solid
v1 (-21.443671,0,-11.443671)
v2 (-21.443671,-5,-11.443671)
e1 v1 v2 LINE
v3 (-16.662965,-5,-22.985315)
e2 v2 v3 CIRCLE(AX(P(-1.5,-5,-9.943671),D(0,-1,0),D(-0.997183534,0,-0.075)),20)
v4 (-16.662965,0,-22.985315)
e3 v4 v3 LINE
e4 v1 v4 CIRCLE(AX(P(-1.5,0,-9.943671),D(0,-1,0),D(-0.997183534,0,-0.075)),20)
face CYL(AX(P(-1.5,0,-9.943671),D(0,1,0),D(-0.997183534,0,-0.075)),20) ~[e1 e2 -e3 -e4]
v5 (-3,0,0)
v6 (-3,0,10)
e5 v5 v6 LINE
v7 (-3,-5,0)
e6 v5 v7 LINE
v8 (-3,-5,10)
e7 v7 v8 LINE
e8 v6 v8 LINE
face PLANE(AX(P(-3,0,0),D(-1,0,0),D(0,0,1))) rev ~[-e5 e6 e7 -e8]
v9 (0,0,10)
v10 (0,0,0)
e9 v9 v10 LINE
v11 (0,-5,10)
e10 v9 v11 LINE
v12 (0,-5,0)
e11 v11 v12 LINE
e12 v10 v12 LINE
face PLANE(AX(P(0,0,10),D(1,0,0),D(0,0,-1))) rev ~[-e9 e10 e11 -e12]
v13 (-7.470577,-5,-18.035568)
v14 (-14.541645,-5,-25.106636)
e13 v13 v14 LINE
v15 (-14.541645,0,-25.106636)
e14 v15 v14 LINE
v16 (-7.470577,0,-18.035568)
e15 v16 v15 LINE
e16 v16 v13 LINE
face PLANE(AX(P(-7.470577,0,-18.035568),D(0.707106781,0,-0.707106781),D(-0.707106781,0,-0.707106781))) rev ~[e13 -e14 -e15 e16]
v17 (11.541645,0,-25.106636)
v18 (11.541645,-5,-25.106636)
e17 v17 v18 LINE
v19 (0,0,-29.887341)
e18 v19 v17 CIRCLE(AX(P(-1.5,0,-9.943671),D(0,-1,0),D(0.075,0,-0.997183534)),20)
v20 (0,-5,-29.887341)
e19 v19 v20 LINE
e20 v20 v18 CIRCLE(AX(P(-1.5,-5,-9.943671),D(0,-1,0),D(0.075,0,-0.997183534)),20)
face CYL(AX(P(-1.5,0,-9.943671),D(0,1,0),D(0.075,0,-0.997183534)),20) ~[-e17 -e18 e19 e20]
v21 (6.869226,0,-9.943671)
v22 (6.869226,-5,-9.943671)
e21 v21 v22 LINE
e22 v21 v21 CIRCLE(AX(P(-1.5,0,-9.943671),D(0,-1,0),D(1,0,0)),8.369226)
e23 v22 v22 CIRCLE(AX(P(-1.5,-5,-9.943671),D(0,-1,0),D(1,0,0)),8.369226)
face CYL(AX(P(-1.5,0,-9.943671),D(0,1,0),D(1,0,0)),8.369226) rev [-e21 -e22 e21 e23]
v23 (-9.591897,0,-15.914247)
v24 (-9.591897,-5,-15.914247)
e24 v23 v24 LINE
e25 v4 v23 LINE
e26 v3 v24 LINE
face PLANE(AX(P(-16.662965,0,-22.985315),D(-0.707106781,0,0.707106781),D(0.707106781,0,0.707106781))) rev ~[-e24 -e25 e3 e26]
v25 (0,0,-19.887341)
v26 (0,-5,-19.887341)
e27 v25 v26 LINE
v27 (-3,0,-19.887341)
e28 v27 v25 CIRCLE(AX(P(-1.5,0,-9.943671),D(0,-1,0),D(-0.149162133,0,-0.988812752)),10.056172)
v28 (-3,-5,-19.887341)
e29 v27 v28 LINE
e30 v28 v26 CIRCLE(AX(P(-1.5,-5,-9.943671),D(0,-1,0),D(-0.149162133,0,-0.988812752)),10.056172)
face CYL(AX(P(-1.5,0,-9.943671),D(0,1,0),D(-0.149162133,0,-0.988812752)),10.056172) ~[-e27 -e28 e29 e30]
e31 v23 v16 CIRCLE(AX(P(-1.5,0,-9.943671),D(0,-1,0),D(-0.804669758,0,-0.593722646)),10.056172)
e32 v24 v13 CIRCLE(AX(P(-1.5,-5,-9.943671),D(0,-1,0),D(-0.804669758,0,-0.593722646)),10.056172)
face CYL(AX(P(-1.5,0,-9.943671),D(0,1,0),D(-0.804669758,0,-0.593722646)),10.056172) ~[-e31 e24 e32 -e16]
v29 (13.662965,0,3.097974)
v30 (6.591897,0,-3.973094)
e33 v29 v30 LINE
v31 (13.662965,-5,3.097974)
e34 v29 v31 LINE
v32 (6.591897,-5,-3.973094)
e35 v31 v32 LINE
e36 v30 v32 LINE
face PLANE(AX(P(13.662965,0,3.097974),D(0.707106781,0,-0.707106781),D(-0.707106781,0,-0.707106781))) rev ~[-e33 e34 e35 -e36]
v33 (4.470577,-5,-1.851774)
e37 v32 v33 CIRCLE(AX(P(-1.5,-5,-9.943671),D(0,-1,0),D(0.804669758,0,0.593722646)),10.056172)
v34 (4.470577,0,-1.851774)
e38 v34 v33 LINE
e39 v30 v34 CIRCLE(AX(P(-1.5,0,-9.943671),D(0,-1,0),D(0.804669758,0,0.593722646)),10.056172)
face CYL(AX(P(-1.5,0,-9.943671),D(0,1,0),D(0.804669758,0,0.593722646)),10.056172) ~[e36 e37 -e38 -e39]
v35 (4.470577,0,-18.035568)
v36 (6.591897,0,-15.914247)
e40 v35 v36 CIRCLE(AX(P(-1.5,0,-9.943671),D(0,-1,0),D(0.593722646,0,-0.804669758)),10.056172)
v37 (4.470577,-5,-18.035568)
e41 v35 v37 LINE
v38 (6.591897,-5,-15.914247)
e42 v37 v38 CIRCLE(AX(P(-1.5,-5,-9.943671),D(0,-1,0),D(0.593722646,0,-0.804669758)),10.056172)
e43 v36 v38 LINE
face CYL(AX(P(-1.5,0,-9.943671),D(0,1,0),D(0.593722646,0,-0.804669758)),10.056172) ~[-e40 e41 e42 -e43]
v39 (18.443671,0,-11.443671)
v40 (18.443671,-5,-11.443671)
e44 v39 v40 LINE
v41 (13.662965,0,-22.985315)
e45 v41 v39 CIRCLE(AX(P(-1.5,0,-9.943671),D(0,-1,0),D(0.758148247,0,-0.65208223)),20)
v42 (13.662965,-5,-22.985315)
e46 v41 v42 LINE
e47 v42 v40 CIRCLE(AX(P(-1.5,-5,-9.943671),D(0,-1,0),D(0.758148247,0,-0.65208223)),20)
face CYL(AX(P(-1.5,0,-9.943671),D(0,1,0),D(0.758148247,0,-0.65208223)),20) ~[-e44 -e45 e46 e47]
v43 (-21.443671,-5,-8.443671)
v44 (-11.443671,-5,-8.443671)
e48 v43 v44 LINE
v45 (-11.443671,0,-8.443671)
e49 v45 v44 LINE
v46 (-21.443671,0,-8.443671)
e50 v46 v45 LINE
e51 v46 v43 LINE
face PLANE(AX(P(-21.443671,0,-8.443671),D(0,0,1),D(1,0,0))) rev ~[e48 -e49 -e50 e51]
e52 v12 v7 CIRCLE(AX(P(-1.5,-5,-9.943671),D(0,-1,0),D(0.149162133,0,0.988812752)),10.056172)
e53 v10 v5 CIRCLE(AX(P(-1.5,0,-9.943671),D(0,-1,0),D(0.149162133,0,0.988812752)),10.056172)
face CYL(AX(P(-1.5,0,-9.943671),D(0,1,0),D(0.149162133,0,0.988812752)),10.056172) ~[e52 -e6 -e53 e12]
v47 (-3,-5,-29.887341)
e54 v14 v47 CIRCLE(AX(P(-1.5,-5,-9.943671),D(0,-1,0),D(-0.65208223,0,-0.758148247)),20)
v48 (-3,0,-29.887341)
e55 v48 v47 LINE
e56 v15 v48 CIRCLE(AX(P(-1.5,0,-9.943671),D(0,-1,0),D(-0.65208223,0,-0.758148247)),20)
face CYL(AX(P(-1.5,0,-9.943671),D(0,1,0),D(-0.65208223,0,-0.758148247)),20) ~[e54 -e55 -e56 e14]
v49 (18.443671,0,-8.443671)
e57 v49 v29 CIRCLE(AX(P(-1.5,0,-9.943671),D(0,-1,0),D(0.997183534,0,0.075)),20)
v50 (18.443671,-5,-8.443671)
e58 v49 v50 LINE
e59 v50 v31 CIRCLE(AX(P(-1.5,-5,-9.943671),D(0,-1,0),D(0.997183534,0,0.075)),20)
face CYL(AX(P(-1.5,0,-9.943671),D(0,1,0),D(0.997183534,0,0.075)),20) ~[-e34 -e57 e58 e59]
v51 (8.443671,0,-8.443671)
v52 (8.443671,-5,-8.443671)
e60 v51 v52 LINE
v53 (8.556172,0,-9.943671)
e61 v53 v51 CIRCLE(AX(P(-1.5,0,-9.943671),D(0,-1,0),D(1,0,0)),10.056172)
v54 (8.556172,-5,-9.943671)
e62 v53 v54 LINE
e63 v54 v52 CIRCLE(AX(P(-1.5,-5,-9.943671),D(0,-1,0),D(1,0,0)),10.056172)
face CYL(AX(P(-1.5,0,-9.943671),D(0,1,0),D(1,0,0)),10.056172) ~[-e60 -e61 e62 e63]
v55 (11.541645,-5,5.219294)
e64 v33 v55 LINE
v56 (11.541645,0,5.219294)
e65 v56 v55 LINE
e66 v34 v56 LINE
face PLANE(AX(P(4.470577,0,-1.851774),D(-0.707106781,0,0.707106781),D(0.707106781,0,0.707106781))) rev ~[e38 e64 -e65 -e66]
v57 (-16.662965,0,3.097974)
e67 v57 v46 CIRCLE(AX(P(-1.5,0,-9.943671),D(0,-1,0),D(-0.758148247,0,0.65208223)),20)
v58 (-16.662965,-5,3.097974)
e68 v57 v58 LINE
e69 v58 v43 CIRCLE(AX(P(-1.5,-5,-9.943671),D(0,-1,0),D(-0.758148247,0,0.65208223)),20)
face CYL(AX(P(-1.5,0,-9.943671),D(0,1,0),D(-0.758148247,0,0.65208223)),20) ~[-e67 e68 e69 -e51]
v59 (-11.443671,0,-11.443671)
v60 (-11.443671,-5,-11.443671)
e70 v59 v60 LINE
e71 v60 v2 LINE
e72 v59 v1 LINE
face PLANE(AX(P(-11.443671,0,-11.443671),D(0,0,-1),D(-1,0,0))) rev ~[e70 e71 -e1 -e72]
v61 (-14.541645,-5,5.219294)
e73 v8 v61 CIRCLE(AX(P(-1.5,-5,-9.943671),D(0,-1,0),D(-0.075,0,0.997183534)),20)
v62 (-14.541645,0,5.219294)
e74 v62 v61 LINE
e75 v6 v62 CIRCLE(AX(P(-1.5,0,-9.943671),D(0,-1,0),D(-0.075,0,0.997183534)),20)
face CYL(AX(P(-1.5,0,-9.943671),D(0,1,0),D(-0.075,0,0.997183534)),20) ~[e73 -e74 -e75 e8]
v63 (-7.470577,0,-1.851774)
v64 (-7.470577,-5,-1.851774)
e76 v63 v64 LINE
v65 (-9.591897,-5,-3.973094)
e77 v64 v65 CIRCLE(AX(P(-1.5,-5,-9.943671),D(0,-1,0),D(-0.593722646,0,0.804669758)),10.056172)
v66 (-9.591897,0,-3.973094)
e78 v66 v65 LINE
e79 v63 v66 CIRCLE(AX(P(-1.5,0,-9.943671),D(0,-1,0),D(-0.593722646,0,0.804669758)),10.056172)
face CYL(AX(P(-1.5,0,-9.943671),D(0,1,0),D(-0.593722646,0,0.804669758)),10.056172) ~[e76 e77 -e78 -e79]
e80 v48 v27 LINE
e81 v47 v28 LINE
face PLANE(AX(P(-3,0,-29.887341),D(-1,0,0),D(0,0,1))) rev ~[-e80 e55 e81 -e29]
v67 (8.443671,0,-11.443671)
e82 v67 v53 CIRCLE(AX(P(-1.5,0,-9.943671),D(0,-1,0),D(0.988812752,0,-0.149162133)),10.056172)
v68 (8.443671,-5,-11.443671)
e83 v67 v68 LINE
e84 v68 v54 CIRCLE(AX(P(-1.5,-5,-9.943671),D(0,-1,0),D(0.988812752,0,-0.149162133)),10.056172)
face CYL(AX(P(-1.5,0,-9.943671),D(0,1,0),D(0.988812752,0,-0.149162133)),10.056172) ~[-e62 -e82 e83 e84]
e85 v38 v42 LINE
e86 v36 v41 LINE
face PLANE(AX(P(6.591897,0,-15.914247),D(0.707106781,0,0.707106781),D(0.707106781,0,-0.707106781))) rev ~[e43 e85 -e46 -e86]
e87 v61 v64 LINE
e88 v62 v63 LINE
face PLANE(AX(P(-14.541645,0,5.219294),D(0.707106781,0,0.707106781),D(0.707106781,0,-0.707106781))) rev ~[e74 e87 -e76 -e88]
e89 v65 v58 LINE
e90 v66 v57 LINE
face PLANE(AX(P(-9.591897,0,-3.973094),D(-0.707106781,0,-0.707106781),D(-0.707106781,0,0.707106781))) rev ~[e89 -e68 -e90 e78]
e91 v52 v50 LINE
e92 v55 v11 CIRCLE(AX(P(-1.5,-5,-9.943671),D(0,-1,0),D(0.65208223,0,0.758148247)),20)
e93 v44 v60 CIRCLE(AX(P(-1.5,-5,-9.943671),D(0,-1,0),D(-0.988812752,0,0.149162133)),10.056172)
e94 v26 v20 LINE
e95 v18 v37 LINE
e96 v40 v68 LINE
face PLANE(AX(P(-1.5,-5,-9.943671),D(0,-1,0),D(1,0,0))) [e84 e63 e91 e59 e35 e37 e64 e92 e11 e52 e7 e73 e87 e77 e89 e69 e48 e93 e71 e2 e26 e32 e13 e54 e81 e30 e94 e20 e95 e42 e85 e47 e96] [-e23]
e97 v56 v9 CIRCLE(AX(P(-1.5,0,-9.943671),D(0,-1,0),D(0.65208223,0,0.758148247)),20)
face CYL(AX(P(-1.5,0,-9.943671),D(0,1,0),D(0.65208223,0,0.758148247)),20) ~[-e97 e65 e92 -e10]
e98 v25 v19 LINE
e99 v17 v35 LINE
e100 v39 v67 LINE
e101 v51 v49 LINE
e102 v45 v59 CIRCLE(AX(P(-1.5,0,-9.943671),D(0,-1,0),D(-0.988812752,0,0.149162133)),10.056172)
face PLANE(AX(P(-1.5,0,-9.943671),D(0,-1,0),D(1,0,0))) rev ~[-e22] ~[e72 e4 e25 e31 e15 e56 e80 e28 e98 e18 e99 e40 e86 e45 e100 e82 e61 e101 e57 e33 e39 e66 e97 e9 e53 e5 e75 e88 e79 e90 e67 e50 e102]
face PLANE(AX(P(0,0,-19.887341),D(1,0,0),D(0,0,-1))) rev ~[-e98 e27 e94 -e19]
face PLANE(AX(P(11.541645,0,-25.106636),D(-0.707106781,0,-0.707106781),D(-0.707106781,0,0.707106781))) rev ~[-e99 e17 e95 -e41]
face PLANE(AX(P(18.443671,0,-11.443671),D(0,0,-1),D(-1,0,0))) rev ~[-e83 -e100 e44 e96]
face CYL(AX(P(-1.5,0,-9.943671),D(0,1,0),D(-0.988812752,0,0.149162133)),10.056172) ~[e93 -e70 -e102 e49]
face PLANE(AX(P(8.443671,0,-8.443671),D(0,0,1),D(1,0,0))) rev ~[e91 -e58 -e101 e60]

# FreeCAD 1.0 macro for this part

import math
import FreeCAD as App
import Part
import Sketcher

V = App.Vector

doc = App.newDocument("Part")
body = doc.addObject("PartDesign::Body", "Body")

# Sketch on XZ plane
sketch1 = body.newObject("Sketcher::SketchObject", "Sketch")
sketch1.AttachmentSupport = (doc.getObject("XZ_Plane"), [""])
sketch1.MapMode = "FlatFace"
sketch1.addGeometry([
    Part.LineSegment(V(4.470577, -1.851774, 0), V(11.541645, 5.219294, 0)),  # 0
    Part.ArcOfCircle(Part.Circle(V(-1.5, -9.943671, 0), V(0, 0, 1), 20), math.radians(49.301222), math.radians(85.698778)),  # 1
    Part.LineSegment(V(0, 10, 0), V(0, 0, 0)),  # 2
    Part.ArcOfCircle(Part.Circle(V(-1.5, -9.943671, 0), V(0, 0, 1), 10.056172), math.radians(81.421626), math.radians(98.578374)),  # 3
    Part.LineSegment(V(-3, 0, 0), V(-3, 10, 0)),  # 4
    Part.ArcOfCircle(Part.Circle(V(-1.5, -9.943671, 0), V(0, 0, 1), 20), math.radians(94.301222), math.radians(130.698778)),  # 5
    Part.LineSegment(V(-14.541645, 5.219294, 0), V(-7.470577, -1.851774, 0)),  # 6
    Part.ArcOfCircle(Part.Circle(V(-1.5, -9.943671, 0), V(0, 0, 1), 10.056172), math.radians(126.421626), math.radians(143.578374)),  # 7
    Part.LineSegment(V(-9.591897, -3.973094, 0), V(-16.662965, 3.097974, 0)),  # 8
    Part.ArcOfCircle(Part.Circle(V(-1.5, -9.943671, 0), V(0, 0, 1), 20), math.radians(139.301222), math.radians(175.698778)),  # 9
    Part.LineSegment(V(-21.443671, -8.443671, 0), V(-11.443671, -8.443671, 0)),  # 10
    Part.ArcOfCircle(Part.Circle(V(-1.5, -9.943671, 0), V(0, 0, 1), 10.056172), math.radians(171.421626), math.radians(188.578374)),  # 11
    Part.LineSegment(V(-11.443671, -11.443671, 0), V(-21.443671, -11.443671, 0)),  # 12
    Part.ArcOfCircle(Part.Circle(V(-1.5, -9.943671, 0), V(0, 0, 1), 20), math.radians(-175.698778), math.radians(-139.301222)),  # 13
    Part.LineSegment(V(-16.662965, -22.985315, 0), V(-9.591897, -15.914247, 0)),  # 14
    Part.ArcOfCircle(Part.Circle(V(-1.5, -9.943671, 0), V(0, 0, 1), 10.056172), math.radians(-143.578374), math.radians(-126.421626)),  # 15
    Part.LineSegment(V(-7.470577, -18.035568, 0), V(-14.541645, -25.106636, 0)),  # 16
    Part.ArcOfCircle(Part.Circle(V(-1.5, -9.943671, 0), V(0, 0, 1), 20), math.radians(-130.698778), math.radians(-94.301222)),  # 17
    Part.LineSegment(V(-3, -29.887341, 0), V(-3, -19.887341, 0)),  # 18
    Part.ArcOfCircle(Part.Circle(V(-1.5, -9.943671, 0), V(0, 0, 1), 10.056172), math.radians(-98.578374), math.radians(-81.421626)),  # 19
    Part.LineSegment(V(0, -19.887341, 0), V(0, -29.887341, 0)),  # 20
    Part.ArcOfCircle(Part.Circle(V(-1.5, -9.943671, 0), V(0, 0, 1), 20), math.radians(-85.698778), math.radians(-49.301222)),  # 21
    Part.LineSegment(V(11.541645, -25.106636, 0), V(4.470577, -18.035568, 0)),  # 22
    Part.ArcOfCircle(Part.Circle(V(-1.5, -9.943671, 0), V(0, 0, 1), 10.056172), math.radians(-53.578374), math.radians(-36.421626)),  # 23
    Part.LineSegment(V(6.591897, -15.914247, 0), V(13.662965, -22.985315, 0)),  # 24
    Part.ArcOfCircle(Part.Circle(V(-1.5, -9.943671, 0), V(0, 0, 1), 20), math.radians(-40.698778), math.radians(-4.301222)),  # 25
    Part.LineSegment(V(18.443671, -11.443671, 0), V(8.443671, -11.443671, 0)),  # 26
    Part.ArcOfCircle(Part.Circle(V(-1.5, -9.943671, 0), V(0, 0, 1), 10.056172), math.radians(-8.578374), math.radians(0)),  # 27
    Part.ArcOfCircle(Part.Circle(V(-1.5, -9.943671, 0), V(0, 0, 1), 10.056172), math.radians(0), math.radians(8.578374)),  # 28
    Part.LineSegment(V(8.443671, -8.443671, 0), V(18.443671, -8.443671, 0)),  # 29
    Part.ArcOfCircle(Part.Circle(V(-1.5, -9.943671, 0), V(0, 0, 1), 20), math.radians(4.301222), math.radians(40.698778)),  # 30
    Part.LineSegment(V(13.662965, 3.097974, 0), V(6.591897, -3.973094, 0)),  # 31
    Part.ArcOfCircle(Part.Circle(V(-1.5, -9.943671, 0), V(0, 0, 1), 10.056172), math.radians(36.421626), math.radians(53.578374)),  # 32
    Part.Circle(V(-1.5, -9.943671, 0), V(0, 0, 1), 8.369226),  # 33
], False)
sketch1.addConstraint([
    Sketcher.Constraint("Coincident", 0, 2, 1, 1),
    Sketcher.Constraint("Coincident", 1, 2, 2, 1),
    Sketcher.Constraint("Coincident", 2, 2, 3, 1),
    Sketcher.Constraint("Coincident", 3, 2, 4, 1),
    Sketcher.Constraint("Coincident", 4, 2, 5, 1),
    Sketcher.Constraint("Coincident", 5, 2, 6, 1),
    Sketcher.Constraint("Coincident", 6, 2, 7, 1),
    Sketcher.Constraint("Coincident", 7, 2, 8, 1),
    Sketcher.Constraint("Coincident", 8, 2, 9, 1),
    Sketcher.Constraint("Coincident", 9, 2, 10, 1),
    Sketcher.Constraint("Coincident", 10, 2, 11, 1),
    Sketcher.Constraint("Coincident", 11, 2, 12, 1),
    Sketcher.Constraint("Coincident", 12, 2, 13, 1),
    Sketcher.Constraint("Coincident", 13, 2, 14, 1),
    Sketcher.Constraint("Coincident", 14, 2, 15, 1),
    Sketcher.Constraint("Coincident", 15, 2, 16, 1),
    Sketcher.Constraint("Coincident", 16, 2, 17, 1),
    Sketcher.Constraint("Coincident", 17, 2, 18, 1),
    Sketcher.Constraint("Coincident", 18, 2, 19, 1),
    Sketcher.Constraint("Coincident", 19, 2, 20, 1),
    Sketcher.Constraint("Coincident", 20, 2, 21, 1),
    Sketcher.Constraint("Coincident", 21, 2, 22, 1),
    Sketcher.Constraint("Coincident", 22, 2, 23, 1),
    Sketcher.Constraint("Coincident", 23, 2, 24, 1),
    Sketcher.Constraint("Coincident", 24, 2, 25, 1),
    Sketcher.Constraint("Coincident", 25, 2, 26, 1),
    Sketcher.Constraint("Coincident", 26, 2, 27, 1),
    Sketcher.Constraint("Tangent", 27, 2, 28, 1),
    Sketcher.Constraint("Coincident", 28, 2, 29, 1),
    Sketcher.Constraint("Coincident", 29, 2, 30, 1),
    Sketcher.Constraint("Coincident", 30, 2, 31, 1),
    Sketcher.Constraint("Coincident", 31, 2, 32, 1),
    Sketcher.Constraint("Coincident", 32, 2, 0, 1),
    Sketcher.Constraint("Vertical", 2),
    Sketcher.Constraint("Vertical", 4),
    Sketcher.Constraint("Horizontal", 10),
    Sketcher.Constraint("Horizontal", 12),
    Sketcher.Constraint("Vertical", 18),
    Sketcher.Constraint("Vertical", 20),
    Sketcher.Constraint("Horizontal", 26),
    Sketcher.Constraint("Horizontal", 29),
    Sketcher.Constraint("Coincident", 2, 2, -1, 1),
    Sketcher.Constraint("Coincident", 3, 3, 1, 3),
    Sketcher.Constraint("Coincident", 5, 3, 1, 3),
    Sketcher.Constraint("Coincident", 7, 3, 1, 3),
    Sketcher.Constraint("Coincident", 9, 3, 1, 3),
    Sketcher.Constraint("Coincident", 11, 3, 1, 3),
    Sketcher.Constraint("Coincident", 13, 3, 1, 3),
    Sketcher.Constraint("Coincident", 15, 3, 1, 3),
    Sketcher.Constraint("Coincident", 17, 3, 1, 3),
    Sketcher.Constraint("Coincident", 19, 3, 1, 3),
    Sketcher.Constraint("Coincident", 21, 3, 1, 3),
    Sketcher.Constraint("Coincident", 23, 3, 1, 3),
    Sketcher.Constraint("Coincident", 25, 3, 1, 3),
    Sketcher.Constraint("Coincident", 27, 3, 1, 3),
    Sketcher.Constraint("Coincident", 30, 3, 1, 3),
    Sketcher.Constraint("Coincident", 32, 3, 1, 3),
    Sketcher.Constraint("Coincident", 33, 3, 1, 3),
    Sketcher.Constraint("Equal", 1, 5),
    Sketcher.Constraint("Equal", 3, 7),
    Sketcher.Constraint("Equal", 5, 9),
    Sketcher.Constraint("Equal", 7, 11),
    Sketcher.Constraint("Equal", 9, 13),
    Sketcher.Constraint("Equal", 11, 15),
    Sketcher.Constraint("Equal", 13, 17),
    Sketcher.Constraint("Equal", 15, 19),
    Sketcher.Constraint("Equal", 17, 21),
    Sketcher.Constraint("Equal", 19, 23),
    Sketcher.Constraint("Equal", 21, 25),
    Sketcher.Constraint("Equal", 23, 27),
    Sketcher.Constraint("Equal", 27, 28),
    Sketcher.Constraint("Equal", 25, 30),
    Sketcher.Constraint("Equal", 28, 32),
    Sketcher.Constraint("PointOnObject", 3, 2, -1),
    Sketcher.Constraint("PointOnObject", 19, 2, -2),
    Sketcher.Constraint("Perpendicular", 0, 6),
    Sketcher.Constraint("Parallel", 6, 8),
    Sketcher.Constraint("Perpendicular", 8, 14),
    Sketcher.Constraint("Parallel", 14, 16),
    Sketcher.Constraint("Perpendicular", 16, 22),
    Sketcher.Constraint("Parallel", 22, 24),
    Sketcher.Constraint("Perpendicular", 24, 31),
    Sketcher.Constraint("Horizontal", 0, 2, 5, 2),
    Sketcher.Constraint("Horizontal", 18, 2, 19, 2),
    Sketcher.Constraint("Horizontal", 16, 2, 21, 2),
    Sketcher.Constraint("Horizontal", 15, 2, 22, 2),
    Sketcher.Constraint("Horizontal", 14, 2, 23, 2),
    Sketcher.Constraint("Horizontal", 12, 2, 25, 2),
    Sketcher.Constraint("Horizontal", 33, 3, 27, 2),
    Sketcher.Constraint("Horizontal", 10, 2, 28, 2),
    Sketcher.Constraint("Horizontal", 8, 2, 30, 2),
    Sketcher.Constraint("Vertical", 10, 2, 11, 2),
    Sketcher.Constraint("Vertical", 8, 2, 13, 2),
    Sketcher.Constraint("Vertical", 6, 2, 15, 2),
    Sketcher.Constraint("Equal", 29, 2),
    Sketcher.Constraint("Equal", 6, 8),
    Sketcher.Constraint("Radius", 1, 20.0),
    Sketcher.Constraint("DistanceX", 10, 1, 10, 2, 10.0),
    Sketcher.Constraint("Distance", 0, 10.0),
    Sketcher.Constraint("DistanceX", 3, 2, -1, 1, 3.0),
    Sketcher.Constraint("Diameter", 33, 16.738452),
])
pad1 = body.newObject("PartDesign::Pad", "Pad")
pad1.Profile = sketch1
pad1.Length = 5

# Sketch on XZ plane
sketch2 = body.newObject("Sketcher::SketchObject", "Sketch001")
sketch2.AttachmentSupport = (doc.getObject("XZ_Plane"), [""])
sketch2.MapMode = "FlatFace"
sketch2.addGeometry([
    Part.LineSegment(V(4.470577, -1.851774, 0), V(11.541645, 5.219294, 0)),  # 0
    Part.ArcOfCircle(Part.Circle(V(-1.5, -9.943671, 0), V(0, 0, 1), 20), math.radians(49.301222), math.radians(85.698778)),  # 1
    Part.LineSegment(V(0, 10, 0), V(0, 0, 0)),  # 2
    Part.ArcOfCircle(Part.Circle(V(-1.5, -9.943671, 0), V(0, 0, 1), 10.056172), math.radians(81.421626), math.radians(98.578374)),  # 3
    Part.LineSegment(V(-3, 0, 0), V(-3, 10, 0)),  # 4
    Part.ArcOfCircle(Part.Circle(V(-1.5, -9.943671, 0), V(0, 0, 1), 20), math.radians(94.301222), math.radians(130.698778)),  # 5
    Part.LineSegment(V(-14.541645, 5.219294, 0), V(-7.470577, -1.851774, 0)),  # 6
    Part.ArcOfCircle(Part.Circle(V(-1.5, -9.943671, 0), V(0, 0, 1), 10.056172), math.radians(126.421626), math.radians(143.578374)),  # 7
    Part.LineSegment(V(-9.591897, -3.973094, 0), V(-16.662965, 3.097974, 0)),  # 8
    Part.ArcOfCircle(Part.Circle(V(-1.5, -9.943671, 0), V(0, 0, 1), 20), math.radians(139.301222), math.radians(175.698778)),  # 9
    Part.LineSegment(V(-21.443671, -8.443671, 0), V(-11.443671, -8.443671, 0)),  # 10
    Part.ArcOfCircle(Part.Circle(V(-1.5, -9.943671, 0), V(0, 0, 1), 10.056172), math.radians(171.421626), math.radians(188.578374)),  # 11
    Part.LineSegment(V(-11.443671, -11.443671, 0), V(-21.443671, -11.443671, 0)),  # 12
    Part.ArcOfCircle(Part.Circle(V(-1.5, -9.943671, 0), V(0, 0, 1), 20), math.radians(-175.698778), math.radians(-139.301222)),  # 13
    Part.LineSegment(V(-16.662965, -22.985315, 0), V(-9.591897, -15.914247, 0)),  # 14
    Part.ArcOfCircle(Part.Circle(V(-1.5, -9.943671, 0), V(0, 0, 1), 10.056172), math.radians(-143.578374), math.radians(-126.421626)),  # 15
    Part.LineSegment(V(-7.470577, -18.035568, 0), V(-14.541645, -25.106636, 0)),  # 16
    Part.ArcOfCircle(Part.Circle(V(-1.5, -9.943671, 0), V(0, 0, 1), 20), math.radians(-130.698778), math.radians(-94.301222)),  # 17
    Part.LineSegment(V(-3, -29.887341, 0), V(-3, -19.887341, 0)),  # 18
    Part.ArcOfCircle(Part.Circle(V(-1.5, -9.943671, 0), V(0, 0, 1), 10.056172), math.radians(-98.578374), math.radians(-81.421626)),  # 19
    Part.LineSegment(V(0, -19.887341, 0), V(0, -29.887341, 0)),  # 20
    Part.ArcOfCircle(Part.Circle(V(-1.5, -9.943671, 0), V(0, 0, 1), 20), math.radians(-85.698778), math.radians(-49.301222)),  # 21
    Part.LineSegment(V(11.541645, -25.106636, 0), V(4.470577, -18.035568, 0)),  # 22
    Part.ArcOfCircle(Part.Circle(V(-1.5, -9.943671, 0), V(0, 0, 1), 10.056172), math.radians(-53.578374), math.radians(-36.421626)),  # 23
    Part.LineSegment(V(6.591897, -15.914247, 0), V(13.662965, -22.985315, 0)),  # 24
    Part.ArcOfCircle(Part.Circle(V(-1.5, -9.943671, 0), V(0, 0, 1), 20), math.radians(-40.698778), math.radians(-4.301222)),  # 25
    Part.LineSegment(V(18.443671, -11.443671, 0), V(8.443671, -11.443671, 0)),  # 26
    Part.ArcOfCircle(Part.Circle(V(-1.5, -9.943671, 0), V(0, 0, 1), 10.056172), math.radians(-8.578374), math.radians(0)),  # 27
    Part.ArcOfCircle(Part.Circle(V(-1.5, -9.943671, 0), V(0, 0, 1), 10.056172), math.radians(0), math.radians(8.578374)),  # 28
    Part.LineSegment(V(8.443671, -8.443671, 0), V(18.443671, -8.443671, 0)),  # 29
    Part.ArcOfCircle(Part.Circle(V(-1.5, -9.943671, 0), V(0, 0, 1), 20), math.radians(4.301222), math.radians(40.698778)),  # 30
    Part.LineSegment(V(13.662965, 3.097974, 0), V(6.591897, -3.973094, 0)),  # 31
    Part.ArcOfCircle(Part.Circle(V(-1.5, -9.943671, 0), V(0, 0, 1), 10.056172), math.radians(36.421626), math.radians(53.578374)),  # 32
    Part.Circle(V(-1.5, -9.943671, 0), V(0, 0, 1), 8.369226),  # 33
], False)
sketch2.addConstraint([
    Sketcher.Constraint("Coincident", 0, 2, 1, 1),
    Sketcher.Constraint("Coincident", 1, 2, 2, 1),
    Sketcher.Constraint("Coincident", 2, 2, 3, 1),
    Sketcher.Constraint("Coincident", 3, 2, 4, 1),
    Sketcher.Constraint("Coincident", 4, 2, 5, 1),
    Sketcher.Constraint("Coincident", 5, 2, 6, 1),
    Sketcher.Constraint("Coincident", 6, 2, 7, 1),
    Sketcher.Constraint("Coincident", 7, 2, 8, 1),
    Sketcher.Constraint("Coincident", 8, 2, 9, 1),
    Sketcher.Constraint("Coincident", 9, 2, 10, 1),
    Sketcher.Constraint("Coincident", 10, 2, 11, 1),
    Sketcher.Constraint("Coincident", 11, 2, 12, 1),
    Sketcher.Constraint("Coincident", 12, 2, 13, 1),
    Sketcher.Constraint("Coincident", 13, 2, 14, 1),
    Sketcher.Constraint("Coincident", 14, 2, 15, 1),
    Sketcher.Constraint("Coincident", 15, 2, 16, 1),
    Sketcher.Constraint("Coincident", 16, 2, 17, 1),
    Sketcher.Constraint("Coincident", 17, 2, 18, 1),
    Sketcher.Constraint("Coincident", 18, 2, 19, 1),
    Sketcher.Constraint("Coincident", 19, 2, 20, 1),
    Sketcher.Constraint("Coincident", 20, 2, 21, 1),
    Sketcher.Constraint("Coincident", 21, 2, 22, 1),
    Sketcher.Constraint("Coincident", 22, 2, 23, 1),
    Sketcher.Constraint("Coincident", 23, 2, 24, 1),
    Sketcher.Constraint("Coincident", 24, 2, 25, 1),
    Sketcher.Constraint("Coincident", 25, 2, 26, 1),
    Sketcher.Constraint("Coincident", 26, 2, 27, 1),
    Sketcher.Constraint("Tangent", 27, 2, 28, 1),
    Sketcher.Constraint("Coincident", 28, 2, 29, 1),
    Sketcher.Constraint("Coincident", 29, 2, 30, 1),
    Sketcher.Constraint("Coincident", 30, 2, 31, 1),
    Sketcher.Constraint("Coincident", 31, 2, 32, 1),
    Sketcher.Constraint("Coincident", 32, 2, 0, 1),
    Sketcher.Constraint("Vertical", 2),
    Sketcher.Constraint("Vertical", 4),
    Sketcher.Constraint("Horizontal", 10),
    Sketcher.Constraint("Horizontal", 12),
    Sketcher.Constraint("Vertical", 18),
    Sketcher.Constraint("Vertical", 20),
    Sketcher.Constraint("Horizontal", 26),
    Sketcher.Constraint("Horizontal", 29),
    Sketcher.Constraint("Coincident", 2, 2, -1, 1),
    Sketcher.Constraint("Coincident", 3, 3, 1, 3),
    Sketcher.Constraint("Coincident", 5, 3, 1, 3),
    Sketcher.Constraint("Coincident", 7, 3, 1, 3),
    Sketcher.Constraint("Coincident", 9, 3, 1, 3),
    Sketcher.Constraint("Coincident", 11, 3, 1, 3),
    Sketcher.Constraint("Coincident", 13, 3, 1, 3),
    Sketcher.Constraint("Coincident", 15, 3, 1, 3),
    Sketcher.Constraint("Coincident", 17, 3, 1, 3),
    Sketcher.Constraint("Coincident", 19, 3, 1, 3),
    Sketcher.Constraint("Coincident", 21, 3, 1, 3),
    Sketcher.Constraint("Coincident", 23, 3, 1, 3),
    Sketcher.Constraint("Coincident", 25, 3, 1, 3),
    Sketcher.Constraint("Coincident", 27, 3, 1, 3),
    Sketcher.Constraint("Coincident", 30, 3, 1, 3),
    Sketcher.Constraint("Coincident", 32, 3, 1, 3),
    Sketcher.Constraint("Coincident", 33, 3, 1, 3),
    Sketcher.Constraint("Equal", 1, 5),
    Sketcher.Constraint("Equal", 3, 7),
    Sketcher.Constraint("Equal", 5, 9),
    Sketcher.Constraint("Equal", 7, 11),
    Sketcher.Constraint("Equal", 9, 13),
    Sketcher.Constraint("Equal", 11, 15),
    Sketcher.Constraint("Equal", 13, 17),
    Sketcher.Constraint("Equal", 15, 19),
    Sketcher.Constraint("Equal", 17, 21),
    Sketcher.Constraint("Equal", 19, 23),
    Sketcher.Constraint("Equal", 21, 25),
    Sketcher.Constraint("Equal", 23, 27),
    Sketcher.Constraint("Equal", 27, 28),
    Sketcher.Constraint("Equal", 25, 30),
    Sketcher.Constraint("Equal", 28, 32),
    Sketcher.Constraint("PointOnObject", 3, 2, -1),
    Sketcher.Constraint("PointOnObject", 19, 2, -2),
    Sketcher.Constraint("Perpendicular", 0, 6),
    Sketcher.Constraint("Parallel", 6, 8),
    Sketcher.Constraint("Perpendicular", 8, 14),
    Sketcher.Constraint("Parallel", 14, 16),
    Sketcher.Constraint("Perpendicular", 16, 22),
    Sketcher.Constraint("Parallel", 22, 24),
    Sketcher.Constraint("Perpendicular", 24, 31),
    Sketcher.Constraint("Horizontal", 0, 2, 5, 2),
    Sketcher.Constraint("Horizontal", 18, 2, 19, 2),
    Sketcher.Constraint("Horizontal", 16, 2, 21, 2),
    Sketcher.Constraint("Horizontal", 15, 2, 22, 2),
    Sketcher.Constraint("Horizontal", 14, 2, 23, 2),
    Sketcher.Constraint("Horizontal", 12, 2, 25, 2),
    Sketcher.Constraint("Horizontal", 33, 3, 27, 2),
    Sketcher.Constraint("Horizontal", 10, 2, 28, 2),
    Sketcher.Constraint("Horizontal", 8, 2, 30, 2),
    Sketcher.Constraint("Vertical", 10, 2, 11, 2),
    Sketcher.Constraint("Vertical", 8, 2, 13, 2),
    Sketcher.Constraint("Vertical", 6, 2, 15, 2),
    Sketcher.Constraint("Equal", 29, 2),
    Sketcher.Constraint("Equal", 6, 8),
    Sketcher.Constraint("Radius", 1, 20.0),
    Sketcher.Constraint("DistanceX", 10, 1, 10, 2, 10.0),
    Sketcher.Constraint("Distance", 0, 10.0),
    Sketcher.Constraint("DistanceX", 3, 2, -1, 1, 3.0),
    Sketcher.Constraint("Diameter", 33, 16.738452),
])
pad2 = body.newObject("PartDesign::Pad", "Pad001")
pad2.Profile = sketch2
pad2.Length = 5

doc.recompute()
